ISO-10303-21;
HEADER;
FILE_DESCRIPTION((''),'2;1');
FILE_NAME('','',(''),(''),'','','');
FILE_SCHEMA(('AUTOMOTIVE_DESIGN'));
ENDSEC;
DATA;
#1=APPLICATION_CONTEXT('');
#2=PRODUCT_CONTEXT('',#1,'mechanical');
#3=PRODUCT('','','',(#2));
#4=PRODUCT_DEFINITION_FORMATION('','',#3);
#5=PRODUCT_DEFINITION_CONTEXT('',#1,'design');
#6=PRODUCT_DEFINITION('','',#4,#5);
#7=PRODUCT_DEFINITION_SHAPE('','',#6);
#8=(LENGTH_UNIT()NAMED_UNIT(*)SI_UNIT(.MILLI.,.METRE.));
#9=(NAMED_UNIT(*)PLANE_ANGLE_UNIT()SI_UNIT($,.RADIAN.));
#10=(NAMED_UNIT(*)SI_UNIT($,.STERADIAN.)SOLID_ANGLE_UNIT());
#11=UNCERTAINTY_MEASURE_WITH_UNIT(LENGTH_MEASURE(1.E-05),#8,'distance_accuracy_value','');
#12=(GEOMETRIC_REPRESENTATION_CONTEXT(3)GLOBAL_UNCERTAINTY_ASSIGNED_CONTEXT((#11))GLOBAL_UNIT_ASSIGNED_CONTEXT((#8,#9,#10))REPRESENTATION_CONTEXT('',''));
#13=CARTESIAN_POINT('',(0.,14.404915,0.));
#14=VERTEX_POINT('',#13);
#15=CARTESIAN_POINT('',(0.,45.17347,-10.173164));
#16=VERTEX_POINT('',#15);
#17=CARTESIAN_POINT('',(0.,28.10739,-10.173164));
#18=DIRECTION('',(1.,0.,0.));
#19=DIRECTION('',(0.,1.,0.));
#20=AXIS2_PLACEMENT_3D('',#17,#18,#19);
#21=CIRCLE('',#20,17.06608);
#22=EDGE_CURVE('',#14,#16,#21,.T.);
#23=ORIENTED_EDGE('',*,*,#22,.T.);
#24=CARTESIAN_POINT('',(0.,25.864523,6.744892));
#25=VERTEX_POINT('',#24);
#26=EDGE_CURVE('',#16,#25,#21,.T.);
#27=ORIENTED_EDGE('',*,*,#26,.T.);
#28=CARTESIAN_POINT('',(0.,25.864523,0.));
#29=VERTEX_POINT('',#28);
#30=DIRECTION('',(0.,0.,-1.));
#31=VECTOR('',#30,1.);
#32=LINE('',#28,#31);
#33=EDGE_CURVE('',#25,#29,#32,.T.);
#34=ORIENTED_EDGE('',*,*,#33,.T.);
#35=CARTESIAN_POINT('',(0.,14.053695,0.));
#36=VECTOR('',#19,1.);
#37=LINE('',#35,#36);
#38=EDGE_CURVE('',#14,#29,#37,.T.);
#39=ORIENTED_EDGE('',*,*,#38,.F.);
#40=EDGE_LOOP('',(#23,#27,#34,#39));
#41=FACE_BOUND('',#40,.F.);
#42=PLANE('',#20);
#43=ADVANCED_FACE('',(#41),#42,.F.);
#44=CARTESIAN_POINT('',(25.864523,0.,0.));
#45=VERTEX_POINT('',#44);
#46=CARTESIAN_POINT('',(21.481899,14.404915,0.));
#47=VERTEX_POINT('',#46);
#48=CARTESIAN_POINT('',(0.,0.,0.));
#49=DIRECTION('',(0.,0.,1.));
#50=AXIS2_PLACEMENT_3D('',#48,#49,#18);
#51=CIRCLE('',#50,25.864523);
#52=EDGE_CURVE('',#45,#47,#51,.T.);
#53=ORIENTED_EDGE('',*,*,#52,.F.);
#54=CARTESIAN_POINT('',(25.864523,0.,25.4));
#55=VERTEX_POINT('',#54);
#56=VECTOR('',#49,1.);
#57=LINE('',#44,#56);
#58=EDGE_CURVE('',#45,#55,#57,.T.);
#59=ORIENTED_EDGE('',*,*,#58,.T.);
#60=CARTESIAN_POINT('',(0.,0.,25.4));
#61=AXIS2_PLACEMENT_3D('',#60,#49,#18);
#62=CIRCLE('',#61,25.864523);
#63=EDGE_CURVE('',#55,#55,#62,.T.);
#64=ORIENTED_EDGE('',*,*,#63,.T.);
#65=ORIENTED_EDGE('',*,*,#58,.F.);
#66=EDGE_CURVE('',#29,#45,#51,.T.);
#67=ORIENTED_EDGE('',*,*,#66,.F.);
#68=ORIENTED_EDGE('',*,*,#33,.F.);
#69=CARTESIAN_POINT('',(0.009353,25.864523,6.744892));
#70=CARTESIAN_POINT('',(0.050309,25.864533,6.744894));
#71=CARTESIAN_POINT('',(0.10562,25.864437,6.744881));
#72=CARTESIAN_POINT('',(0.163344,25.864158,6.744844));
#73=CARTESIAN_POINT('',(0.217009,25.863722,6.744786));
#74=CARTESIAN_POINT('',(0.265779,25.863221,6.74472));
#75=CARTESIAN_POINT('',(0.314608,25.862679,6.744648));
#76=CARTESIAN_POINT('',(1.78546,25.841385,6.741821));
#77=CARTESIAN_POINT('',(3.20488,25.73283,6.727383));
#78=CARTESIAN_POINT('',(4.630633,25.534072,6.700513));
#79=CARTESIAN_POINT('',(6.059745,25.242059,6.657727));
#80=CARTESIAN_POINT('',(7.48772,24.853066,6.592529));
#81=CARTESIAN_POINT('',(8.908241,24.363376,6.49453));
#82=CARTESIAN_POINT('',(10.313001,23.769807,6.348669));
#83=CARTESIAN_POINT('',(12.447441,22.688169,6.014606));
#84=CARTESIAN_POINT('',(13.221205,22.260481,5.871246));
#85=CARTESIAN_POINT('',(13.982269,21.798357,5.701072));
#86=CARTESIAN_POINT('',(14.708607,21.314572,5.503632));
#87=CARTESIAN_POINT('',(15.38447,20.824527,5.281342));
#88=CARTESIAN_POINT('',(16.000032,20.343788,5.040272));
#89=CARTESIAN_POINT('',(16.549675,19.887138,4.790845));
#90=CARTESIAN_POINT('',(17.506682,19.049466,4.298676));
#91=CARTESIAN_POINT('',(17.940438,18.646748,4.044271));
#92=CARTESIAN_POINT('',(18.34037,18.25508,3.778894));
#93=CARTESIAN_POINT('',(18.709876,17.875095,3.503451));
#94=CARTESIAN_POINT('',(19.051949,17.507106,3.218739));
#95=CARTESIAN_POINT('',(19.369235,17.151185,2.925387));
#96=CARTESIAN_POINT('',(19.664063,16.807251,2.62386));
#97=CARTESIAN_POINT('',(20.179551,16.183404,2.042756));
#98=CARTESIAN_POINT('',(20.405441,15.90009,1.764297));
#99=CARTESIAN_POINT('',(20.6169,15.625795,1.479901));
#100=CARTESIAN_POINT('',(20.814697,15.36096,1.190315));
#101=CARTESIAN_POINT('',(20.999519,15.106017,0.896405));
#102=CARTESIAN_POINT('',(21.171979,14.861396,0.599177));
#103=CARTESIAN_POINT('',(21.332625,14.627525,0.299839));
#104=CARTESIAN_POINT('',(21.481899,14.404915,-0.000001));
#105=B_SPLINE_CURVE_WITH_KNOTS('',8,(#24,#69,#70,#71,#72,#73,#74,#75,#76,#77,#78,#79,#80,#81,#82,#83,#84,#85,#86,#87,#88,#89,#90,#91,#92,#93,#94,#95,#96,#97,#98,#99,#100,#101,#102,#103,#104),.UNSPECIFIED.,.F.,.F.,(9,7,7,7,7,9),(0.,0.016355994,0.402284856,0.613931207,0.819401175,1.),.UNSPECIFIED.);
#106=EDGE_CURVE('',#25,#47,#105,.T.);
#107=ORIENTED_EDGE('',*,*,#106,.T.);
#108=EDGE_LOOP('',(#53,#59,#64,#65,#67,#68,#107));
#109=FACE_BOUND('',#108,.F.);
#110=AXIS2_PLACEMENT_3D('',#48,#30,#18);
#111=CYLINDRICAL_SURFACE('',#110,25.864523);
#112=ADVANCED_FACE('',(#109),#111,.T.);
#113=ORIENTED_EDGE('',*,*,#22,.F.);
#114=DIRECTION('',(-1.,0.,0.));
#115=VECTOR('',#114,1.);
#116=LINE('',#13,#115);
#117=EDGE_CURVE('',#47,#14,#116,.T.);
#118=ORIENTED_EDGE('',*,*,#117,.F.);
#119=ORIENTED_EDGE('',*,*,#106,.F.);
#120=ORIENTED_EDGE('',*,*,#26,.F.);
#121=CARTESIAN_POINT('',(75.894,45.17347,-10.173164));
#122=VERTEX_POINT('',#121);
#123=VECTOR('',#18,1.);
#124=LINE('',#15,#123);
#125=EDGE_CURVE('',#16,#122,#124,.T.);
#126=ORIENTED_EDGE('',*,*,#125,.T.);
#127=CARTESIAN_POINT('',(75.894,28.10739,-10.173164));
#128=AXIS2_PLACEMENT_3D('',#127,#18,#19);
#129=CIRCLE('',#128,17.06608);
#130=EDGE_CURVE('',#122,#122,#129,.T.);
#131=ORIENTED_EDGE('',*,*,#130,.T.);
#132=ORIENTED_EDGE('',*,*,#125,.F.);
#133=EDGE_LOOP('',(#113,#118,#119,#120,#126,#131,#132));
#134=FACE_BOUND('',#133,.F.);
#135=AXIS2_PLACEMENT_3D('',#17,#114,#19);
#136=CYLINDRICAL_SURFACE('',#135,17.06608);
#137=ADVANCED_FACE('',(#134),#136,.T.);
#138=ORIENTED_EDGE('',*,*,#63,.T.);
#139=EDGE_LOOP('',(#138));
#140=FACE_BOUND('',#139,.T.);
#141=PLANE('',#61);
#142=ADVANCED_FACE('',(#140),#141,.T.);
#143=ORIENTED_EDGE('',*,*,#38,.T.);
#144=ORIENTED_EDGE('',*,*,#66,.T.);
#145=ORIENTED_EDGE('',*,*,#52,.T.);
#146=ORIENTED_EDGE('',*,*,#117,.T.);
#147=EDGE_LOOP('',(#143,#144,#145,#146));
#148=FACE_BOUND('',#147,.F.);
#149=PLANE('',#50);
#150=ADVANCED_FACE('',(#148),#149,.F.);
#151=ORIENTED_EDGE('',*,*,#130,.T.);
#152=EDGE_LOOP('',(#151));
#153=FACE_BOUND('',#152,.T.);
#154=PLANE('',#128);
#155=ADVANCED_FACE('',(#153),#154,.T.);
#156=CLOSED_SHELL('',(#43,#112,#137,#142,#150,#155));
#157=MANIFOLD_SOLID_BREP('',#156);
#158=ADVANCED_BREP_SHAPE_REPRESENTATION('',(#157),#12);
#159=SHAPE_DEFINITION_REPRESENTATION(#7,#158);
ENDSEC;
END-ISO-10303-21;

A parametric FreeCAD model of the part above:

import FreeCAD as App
import Part
import Sketcher
from FreeCAD import Vector
Q = App.Units.Quantity

doc = App.newDocument("Part")
params = doc.addObject("Spreadsheet::Sheet", "Params")
for row, (alias, value) in enumerate([
    ("pad1_length", "1 in"),
    ("pad2_length", "75.894 mm"),
], start=1):
    params.set(f"A{row}", alias)
    params.set(f"B{row}", "=" + value)
    params.setAlias(f"B{row}", alias)

body = doc.addObject("PartDesign::Body", "Body")

# Sketch on XY plane
sketch1 = body.newObject("Sketcher::SketchObject", "Sketch")
sketch1.AttachmentSupport = (doc.getObject("XY_Plane"), [""])
sketch1.MapMode = "FlatFace"
sketch1.addGeometry(Part.Circle(Vector(0, 0, 0), Vector(0, 0, 1), 26), False)
sketch1.addConstraint(Sketcher.Constraint("Coincident", 0, 3, -1, 1))
sketch1.addConstraint(Sketcher.Constraint("Diameter", 0, Q("51.729046 mm")))
pad1 = body.newObject("PartDesign::Pad", "Pad")
pad1.Profile = sketch1
pad1.setExpression("Length", "Params.pad1_length")

# Sketch on YZ plane
sketch2 = body.newObject("Sketcher::SketchObject", "Sketch001")
sketch2.AttachmentSupport = (doc.getObject("YZ_Plane"), [""])
sketch2.MapMode = "FlatFace"
sketch2.addGeometry(Part.Circle(Vector(28, -10, 0), Vector(0, 0, 1), 17), False)
sketch2.addConstraint(Sketcher.Constraint("Diameter", 0, Q("34.13216 mm")))
sketch2.addConstraint(Sketcher.Constraint("DistanceX", -1, 1, 0, 3, Q("28.10739 mm")))
sketch2.addConstraint(Sketcher.Constraint("DistanceY", 0, 3, -1, 1, Q("10.173164 mm")))
pad2 = body.newObject("PartDesign::Pad", "Pad001")
pad2.Profile = sketch2
pad2.setExpression("Length", "Params.pad2_length")

doc.recompute()
